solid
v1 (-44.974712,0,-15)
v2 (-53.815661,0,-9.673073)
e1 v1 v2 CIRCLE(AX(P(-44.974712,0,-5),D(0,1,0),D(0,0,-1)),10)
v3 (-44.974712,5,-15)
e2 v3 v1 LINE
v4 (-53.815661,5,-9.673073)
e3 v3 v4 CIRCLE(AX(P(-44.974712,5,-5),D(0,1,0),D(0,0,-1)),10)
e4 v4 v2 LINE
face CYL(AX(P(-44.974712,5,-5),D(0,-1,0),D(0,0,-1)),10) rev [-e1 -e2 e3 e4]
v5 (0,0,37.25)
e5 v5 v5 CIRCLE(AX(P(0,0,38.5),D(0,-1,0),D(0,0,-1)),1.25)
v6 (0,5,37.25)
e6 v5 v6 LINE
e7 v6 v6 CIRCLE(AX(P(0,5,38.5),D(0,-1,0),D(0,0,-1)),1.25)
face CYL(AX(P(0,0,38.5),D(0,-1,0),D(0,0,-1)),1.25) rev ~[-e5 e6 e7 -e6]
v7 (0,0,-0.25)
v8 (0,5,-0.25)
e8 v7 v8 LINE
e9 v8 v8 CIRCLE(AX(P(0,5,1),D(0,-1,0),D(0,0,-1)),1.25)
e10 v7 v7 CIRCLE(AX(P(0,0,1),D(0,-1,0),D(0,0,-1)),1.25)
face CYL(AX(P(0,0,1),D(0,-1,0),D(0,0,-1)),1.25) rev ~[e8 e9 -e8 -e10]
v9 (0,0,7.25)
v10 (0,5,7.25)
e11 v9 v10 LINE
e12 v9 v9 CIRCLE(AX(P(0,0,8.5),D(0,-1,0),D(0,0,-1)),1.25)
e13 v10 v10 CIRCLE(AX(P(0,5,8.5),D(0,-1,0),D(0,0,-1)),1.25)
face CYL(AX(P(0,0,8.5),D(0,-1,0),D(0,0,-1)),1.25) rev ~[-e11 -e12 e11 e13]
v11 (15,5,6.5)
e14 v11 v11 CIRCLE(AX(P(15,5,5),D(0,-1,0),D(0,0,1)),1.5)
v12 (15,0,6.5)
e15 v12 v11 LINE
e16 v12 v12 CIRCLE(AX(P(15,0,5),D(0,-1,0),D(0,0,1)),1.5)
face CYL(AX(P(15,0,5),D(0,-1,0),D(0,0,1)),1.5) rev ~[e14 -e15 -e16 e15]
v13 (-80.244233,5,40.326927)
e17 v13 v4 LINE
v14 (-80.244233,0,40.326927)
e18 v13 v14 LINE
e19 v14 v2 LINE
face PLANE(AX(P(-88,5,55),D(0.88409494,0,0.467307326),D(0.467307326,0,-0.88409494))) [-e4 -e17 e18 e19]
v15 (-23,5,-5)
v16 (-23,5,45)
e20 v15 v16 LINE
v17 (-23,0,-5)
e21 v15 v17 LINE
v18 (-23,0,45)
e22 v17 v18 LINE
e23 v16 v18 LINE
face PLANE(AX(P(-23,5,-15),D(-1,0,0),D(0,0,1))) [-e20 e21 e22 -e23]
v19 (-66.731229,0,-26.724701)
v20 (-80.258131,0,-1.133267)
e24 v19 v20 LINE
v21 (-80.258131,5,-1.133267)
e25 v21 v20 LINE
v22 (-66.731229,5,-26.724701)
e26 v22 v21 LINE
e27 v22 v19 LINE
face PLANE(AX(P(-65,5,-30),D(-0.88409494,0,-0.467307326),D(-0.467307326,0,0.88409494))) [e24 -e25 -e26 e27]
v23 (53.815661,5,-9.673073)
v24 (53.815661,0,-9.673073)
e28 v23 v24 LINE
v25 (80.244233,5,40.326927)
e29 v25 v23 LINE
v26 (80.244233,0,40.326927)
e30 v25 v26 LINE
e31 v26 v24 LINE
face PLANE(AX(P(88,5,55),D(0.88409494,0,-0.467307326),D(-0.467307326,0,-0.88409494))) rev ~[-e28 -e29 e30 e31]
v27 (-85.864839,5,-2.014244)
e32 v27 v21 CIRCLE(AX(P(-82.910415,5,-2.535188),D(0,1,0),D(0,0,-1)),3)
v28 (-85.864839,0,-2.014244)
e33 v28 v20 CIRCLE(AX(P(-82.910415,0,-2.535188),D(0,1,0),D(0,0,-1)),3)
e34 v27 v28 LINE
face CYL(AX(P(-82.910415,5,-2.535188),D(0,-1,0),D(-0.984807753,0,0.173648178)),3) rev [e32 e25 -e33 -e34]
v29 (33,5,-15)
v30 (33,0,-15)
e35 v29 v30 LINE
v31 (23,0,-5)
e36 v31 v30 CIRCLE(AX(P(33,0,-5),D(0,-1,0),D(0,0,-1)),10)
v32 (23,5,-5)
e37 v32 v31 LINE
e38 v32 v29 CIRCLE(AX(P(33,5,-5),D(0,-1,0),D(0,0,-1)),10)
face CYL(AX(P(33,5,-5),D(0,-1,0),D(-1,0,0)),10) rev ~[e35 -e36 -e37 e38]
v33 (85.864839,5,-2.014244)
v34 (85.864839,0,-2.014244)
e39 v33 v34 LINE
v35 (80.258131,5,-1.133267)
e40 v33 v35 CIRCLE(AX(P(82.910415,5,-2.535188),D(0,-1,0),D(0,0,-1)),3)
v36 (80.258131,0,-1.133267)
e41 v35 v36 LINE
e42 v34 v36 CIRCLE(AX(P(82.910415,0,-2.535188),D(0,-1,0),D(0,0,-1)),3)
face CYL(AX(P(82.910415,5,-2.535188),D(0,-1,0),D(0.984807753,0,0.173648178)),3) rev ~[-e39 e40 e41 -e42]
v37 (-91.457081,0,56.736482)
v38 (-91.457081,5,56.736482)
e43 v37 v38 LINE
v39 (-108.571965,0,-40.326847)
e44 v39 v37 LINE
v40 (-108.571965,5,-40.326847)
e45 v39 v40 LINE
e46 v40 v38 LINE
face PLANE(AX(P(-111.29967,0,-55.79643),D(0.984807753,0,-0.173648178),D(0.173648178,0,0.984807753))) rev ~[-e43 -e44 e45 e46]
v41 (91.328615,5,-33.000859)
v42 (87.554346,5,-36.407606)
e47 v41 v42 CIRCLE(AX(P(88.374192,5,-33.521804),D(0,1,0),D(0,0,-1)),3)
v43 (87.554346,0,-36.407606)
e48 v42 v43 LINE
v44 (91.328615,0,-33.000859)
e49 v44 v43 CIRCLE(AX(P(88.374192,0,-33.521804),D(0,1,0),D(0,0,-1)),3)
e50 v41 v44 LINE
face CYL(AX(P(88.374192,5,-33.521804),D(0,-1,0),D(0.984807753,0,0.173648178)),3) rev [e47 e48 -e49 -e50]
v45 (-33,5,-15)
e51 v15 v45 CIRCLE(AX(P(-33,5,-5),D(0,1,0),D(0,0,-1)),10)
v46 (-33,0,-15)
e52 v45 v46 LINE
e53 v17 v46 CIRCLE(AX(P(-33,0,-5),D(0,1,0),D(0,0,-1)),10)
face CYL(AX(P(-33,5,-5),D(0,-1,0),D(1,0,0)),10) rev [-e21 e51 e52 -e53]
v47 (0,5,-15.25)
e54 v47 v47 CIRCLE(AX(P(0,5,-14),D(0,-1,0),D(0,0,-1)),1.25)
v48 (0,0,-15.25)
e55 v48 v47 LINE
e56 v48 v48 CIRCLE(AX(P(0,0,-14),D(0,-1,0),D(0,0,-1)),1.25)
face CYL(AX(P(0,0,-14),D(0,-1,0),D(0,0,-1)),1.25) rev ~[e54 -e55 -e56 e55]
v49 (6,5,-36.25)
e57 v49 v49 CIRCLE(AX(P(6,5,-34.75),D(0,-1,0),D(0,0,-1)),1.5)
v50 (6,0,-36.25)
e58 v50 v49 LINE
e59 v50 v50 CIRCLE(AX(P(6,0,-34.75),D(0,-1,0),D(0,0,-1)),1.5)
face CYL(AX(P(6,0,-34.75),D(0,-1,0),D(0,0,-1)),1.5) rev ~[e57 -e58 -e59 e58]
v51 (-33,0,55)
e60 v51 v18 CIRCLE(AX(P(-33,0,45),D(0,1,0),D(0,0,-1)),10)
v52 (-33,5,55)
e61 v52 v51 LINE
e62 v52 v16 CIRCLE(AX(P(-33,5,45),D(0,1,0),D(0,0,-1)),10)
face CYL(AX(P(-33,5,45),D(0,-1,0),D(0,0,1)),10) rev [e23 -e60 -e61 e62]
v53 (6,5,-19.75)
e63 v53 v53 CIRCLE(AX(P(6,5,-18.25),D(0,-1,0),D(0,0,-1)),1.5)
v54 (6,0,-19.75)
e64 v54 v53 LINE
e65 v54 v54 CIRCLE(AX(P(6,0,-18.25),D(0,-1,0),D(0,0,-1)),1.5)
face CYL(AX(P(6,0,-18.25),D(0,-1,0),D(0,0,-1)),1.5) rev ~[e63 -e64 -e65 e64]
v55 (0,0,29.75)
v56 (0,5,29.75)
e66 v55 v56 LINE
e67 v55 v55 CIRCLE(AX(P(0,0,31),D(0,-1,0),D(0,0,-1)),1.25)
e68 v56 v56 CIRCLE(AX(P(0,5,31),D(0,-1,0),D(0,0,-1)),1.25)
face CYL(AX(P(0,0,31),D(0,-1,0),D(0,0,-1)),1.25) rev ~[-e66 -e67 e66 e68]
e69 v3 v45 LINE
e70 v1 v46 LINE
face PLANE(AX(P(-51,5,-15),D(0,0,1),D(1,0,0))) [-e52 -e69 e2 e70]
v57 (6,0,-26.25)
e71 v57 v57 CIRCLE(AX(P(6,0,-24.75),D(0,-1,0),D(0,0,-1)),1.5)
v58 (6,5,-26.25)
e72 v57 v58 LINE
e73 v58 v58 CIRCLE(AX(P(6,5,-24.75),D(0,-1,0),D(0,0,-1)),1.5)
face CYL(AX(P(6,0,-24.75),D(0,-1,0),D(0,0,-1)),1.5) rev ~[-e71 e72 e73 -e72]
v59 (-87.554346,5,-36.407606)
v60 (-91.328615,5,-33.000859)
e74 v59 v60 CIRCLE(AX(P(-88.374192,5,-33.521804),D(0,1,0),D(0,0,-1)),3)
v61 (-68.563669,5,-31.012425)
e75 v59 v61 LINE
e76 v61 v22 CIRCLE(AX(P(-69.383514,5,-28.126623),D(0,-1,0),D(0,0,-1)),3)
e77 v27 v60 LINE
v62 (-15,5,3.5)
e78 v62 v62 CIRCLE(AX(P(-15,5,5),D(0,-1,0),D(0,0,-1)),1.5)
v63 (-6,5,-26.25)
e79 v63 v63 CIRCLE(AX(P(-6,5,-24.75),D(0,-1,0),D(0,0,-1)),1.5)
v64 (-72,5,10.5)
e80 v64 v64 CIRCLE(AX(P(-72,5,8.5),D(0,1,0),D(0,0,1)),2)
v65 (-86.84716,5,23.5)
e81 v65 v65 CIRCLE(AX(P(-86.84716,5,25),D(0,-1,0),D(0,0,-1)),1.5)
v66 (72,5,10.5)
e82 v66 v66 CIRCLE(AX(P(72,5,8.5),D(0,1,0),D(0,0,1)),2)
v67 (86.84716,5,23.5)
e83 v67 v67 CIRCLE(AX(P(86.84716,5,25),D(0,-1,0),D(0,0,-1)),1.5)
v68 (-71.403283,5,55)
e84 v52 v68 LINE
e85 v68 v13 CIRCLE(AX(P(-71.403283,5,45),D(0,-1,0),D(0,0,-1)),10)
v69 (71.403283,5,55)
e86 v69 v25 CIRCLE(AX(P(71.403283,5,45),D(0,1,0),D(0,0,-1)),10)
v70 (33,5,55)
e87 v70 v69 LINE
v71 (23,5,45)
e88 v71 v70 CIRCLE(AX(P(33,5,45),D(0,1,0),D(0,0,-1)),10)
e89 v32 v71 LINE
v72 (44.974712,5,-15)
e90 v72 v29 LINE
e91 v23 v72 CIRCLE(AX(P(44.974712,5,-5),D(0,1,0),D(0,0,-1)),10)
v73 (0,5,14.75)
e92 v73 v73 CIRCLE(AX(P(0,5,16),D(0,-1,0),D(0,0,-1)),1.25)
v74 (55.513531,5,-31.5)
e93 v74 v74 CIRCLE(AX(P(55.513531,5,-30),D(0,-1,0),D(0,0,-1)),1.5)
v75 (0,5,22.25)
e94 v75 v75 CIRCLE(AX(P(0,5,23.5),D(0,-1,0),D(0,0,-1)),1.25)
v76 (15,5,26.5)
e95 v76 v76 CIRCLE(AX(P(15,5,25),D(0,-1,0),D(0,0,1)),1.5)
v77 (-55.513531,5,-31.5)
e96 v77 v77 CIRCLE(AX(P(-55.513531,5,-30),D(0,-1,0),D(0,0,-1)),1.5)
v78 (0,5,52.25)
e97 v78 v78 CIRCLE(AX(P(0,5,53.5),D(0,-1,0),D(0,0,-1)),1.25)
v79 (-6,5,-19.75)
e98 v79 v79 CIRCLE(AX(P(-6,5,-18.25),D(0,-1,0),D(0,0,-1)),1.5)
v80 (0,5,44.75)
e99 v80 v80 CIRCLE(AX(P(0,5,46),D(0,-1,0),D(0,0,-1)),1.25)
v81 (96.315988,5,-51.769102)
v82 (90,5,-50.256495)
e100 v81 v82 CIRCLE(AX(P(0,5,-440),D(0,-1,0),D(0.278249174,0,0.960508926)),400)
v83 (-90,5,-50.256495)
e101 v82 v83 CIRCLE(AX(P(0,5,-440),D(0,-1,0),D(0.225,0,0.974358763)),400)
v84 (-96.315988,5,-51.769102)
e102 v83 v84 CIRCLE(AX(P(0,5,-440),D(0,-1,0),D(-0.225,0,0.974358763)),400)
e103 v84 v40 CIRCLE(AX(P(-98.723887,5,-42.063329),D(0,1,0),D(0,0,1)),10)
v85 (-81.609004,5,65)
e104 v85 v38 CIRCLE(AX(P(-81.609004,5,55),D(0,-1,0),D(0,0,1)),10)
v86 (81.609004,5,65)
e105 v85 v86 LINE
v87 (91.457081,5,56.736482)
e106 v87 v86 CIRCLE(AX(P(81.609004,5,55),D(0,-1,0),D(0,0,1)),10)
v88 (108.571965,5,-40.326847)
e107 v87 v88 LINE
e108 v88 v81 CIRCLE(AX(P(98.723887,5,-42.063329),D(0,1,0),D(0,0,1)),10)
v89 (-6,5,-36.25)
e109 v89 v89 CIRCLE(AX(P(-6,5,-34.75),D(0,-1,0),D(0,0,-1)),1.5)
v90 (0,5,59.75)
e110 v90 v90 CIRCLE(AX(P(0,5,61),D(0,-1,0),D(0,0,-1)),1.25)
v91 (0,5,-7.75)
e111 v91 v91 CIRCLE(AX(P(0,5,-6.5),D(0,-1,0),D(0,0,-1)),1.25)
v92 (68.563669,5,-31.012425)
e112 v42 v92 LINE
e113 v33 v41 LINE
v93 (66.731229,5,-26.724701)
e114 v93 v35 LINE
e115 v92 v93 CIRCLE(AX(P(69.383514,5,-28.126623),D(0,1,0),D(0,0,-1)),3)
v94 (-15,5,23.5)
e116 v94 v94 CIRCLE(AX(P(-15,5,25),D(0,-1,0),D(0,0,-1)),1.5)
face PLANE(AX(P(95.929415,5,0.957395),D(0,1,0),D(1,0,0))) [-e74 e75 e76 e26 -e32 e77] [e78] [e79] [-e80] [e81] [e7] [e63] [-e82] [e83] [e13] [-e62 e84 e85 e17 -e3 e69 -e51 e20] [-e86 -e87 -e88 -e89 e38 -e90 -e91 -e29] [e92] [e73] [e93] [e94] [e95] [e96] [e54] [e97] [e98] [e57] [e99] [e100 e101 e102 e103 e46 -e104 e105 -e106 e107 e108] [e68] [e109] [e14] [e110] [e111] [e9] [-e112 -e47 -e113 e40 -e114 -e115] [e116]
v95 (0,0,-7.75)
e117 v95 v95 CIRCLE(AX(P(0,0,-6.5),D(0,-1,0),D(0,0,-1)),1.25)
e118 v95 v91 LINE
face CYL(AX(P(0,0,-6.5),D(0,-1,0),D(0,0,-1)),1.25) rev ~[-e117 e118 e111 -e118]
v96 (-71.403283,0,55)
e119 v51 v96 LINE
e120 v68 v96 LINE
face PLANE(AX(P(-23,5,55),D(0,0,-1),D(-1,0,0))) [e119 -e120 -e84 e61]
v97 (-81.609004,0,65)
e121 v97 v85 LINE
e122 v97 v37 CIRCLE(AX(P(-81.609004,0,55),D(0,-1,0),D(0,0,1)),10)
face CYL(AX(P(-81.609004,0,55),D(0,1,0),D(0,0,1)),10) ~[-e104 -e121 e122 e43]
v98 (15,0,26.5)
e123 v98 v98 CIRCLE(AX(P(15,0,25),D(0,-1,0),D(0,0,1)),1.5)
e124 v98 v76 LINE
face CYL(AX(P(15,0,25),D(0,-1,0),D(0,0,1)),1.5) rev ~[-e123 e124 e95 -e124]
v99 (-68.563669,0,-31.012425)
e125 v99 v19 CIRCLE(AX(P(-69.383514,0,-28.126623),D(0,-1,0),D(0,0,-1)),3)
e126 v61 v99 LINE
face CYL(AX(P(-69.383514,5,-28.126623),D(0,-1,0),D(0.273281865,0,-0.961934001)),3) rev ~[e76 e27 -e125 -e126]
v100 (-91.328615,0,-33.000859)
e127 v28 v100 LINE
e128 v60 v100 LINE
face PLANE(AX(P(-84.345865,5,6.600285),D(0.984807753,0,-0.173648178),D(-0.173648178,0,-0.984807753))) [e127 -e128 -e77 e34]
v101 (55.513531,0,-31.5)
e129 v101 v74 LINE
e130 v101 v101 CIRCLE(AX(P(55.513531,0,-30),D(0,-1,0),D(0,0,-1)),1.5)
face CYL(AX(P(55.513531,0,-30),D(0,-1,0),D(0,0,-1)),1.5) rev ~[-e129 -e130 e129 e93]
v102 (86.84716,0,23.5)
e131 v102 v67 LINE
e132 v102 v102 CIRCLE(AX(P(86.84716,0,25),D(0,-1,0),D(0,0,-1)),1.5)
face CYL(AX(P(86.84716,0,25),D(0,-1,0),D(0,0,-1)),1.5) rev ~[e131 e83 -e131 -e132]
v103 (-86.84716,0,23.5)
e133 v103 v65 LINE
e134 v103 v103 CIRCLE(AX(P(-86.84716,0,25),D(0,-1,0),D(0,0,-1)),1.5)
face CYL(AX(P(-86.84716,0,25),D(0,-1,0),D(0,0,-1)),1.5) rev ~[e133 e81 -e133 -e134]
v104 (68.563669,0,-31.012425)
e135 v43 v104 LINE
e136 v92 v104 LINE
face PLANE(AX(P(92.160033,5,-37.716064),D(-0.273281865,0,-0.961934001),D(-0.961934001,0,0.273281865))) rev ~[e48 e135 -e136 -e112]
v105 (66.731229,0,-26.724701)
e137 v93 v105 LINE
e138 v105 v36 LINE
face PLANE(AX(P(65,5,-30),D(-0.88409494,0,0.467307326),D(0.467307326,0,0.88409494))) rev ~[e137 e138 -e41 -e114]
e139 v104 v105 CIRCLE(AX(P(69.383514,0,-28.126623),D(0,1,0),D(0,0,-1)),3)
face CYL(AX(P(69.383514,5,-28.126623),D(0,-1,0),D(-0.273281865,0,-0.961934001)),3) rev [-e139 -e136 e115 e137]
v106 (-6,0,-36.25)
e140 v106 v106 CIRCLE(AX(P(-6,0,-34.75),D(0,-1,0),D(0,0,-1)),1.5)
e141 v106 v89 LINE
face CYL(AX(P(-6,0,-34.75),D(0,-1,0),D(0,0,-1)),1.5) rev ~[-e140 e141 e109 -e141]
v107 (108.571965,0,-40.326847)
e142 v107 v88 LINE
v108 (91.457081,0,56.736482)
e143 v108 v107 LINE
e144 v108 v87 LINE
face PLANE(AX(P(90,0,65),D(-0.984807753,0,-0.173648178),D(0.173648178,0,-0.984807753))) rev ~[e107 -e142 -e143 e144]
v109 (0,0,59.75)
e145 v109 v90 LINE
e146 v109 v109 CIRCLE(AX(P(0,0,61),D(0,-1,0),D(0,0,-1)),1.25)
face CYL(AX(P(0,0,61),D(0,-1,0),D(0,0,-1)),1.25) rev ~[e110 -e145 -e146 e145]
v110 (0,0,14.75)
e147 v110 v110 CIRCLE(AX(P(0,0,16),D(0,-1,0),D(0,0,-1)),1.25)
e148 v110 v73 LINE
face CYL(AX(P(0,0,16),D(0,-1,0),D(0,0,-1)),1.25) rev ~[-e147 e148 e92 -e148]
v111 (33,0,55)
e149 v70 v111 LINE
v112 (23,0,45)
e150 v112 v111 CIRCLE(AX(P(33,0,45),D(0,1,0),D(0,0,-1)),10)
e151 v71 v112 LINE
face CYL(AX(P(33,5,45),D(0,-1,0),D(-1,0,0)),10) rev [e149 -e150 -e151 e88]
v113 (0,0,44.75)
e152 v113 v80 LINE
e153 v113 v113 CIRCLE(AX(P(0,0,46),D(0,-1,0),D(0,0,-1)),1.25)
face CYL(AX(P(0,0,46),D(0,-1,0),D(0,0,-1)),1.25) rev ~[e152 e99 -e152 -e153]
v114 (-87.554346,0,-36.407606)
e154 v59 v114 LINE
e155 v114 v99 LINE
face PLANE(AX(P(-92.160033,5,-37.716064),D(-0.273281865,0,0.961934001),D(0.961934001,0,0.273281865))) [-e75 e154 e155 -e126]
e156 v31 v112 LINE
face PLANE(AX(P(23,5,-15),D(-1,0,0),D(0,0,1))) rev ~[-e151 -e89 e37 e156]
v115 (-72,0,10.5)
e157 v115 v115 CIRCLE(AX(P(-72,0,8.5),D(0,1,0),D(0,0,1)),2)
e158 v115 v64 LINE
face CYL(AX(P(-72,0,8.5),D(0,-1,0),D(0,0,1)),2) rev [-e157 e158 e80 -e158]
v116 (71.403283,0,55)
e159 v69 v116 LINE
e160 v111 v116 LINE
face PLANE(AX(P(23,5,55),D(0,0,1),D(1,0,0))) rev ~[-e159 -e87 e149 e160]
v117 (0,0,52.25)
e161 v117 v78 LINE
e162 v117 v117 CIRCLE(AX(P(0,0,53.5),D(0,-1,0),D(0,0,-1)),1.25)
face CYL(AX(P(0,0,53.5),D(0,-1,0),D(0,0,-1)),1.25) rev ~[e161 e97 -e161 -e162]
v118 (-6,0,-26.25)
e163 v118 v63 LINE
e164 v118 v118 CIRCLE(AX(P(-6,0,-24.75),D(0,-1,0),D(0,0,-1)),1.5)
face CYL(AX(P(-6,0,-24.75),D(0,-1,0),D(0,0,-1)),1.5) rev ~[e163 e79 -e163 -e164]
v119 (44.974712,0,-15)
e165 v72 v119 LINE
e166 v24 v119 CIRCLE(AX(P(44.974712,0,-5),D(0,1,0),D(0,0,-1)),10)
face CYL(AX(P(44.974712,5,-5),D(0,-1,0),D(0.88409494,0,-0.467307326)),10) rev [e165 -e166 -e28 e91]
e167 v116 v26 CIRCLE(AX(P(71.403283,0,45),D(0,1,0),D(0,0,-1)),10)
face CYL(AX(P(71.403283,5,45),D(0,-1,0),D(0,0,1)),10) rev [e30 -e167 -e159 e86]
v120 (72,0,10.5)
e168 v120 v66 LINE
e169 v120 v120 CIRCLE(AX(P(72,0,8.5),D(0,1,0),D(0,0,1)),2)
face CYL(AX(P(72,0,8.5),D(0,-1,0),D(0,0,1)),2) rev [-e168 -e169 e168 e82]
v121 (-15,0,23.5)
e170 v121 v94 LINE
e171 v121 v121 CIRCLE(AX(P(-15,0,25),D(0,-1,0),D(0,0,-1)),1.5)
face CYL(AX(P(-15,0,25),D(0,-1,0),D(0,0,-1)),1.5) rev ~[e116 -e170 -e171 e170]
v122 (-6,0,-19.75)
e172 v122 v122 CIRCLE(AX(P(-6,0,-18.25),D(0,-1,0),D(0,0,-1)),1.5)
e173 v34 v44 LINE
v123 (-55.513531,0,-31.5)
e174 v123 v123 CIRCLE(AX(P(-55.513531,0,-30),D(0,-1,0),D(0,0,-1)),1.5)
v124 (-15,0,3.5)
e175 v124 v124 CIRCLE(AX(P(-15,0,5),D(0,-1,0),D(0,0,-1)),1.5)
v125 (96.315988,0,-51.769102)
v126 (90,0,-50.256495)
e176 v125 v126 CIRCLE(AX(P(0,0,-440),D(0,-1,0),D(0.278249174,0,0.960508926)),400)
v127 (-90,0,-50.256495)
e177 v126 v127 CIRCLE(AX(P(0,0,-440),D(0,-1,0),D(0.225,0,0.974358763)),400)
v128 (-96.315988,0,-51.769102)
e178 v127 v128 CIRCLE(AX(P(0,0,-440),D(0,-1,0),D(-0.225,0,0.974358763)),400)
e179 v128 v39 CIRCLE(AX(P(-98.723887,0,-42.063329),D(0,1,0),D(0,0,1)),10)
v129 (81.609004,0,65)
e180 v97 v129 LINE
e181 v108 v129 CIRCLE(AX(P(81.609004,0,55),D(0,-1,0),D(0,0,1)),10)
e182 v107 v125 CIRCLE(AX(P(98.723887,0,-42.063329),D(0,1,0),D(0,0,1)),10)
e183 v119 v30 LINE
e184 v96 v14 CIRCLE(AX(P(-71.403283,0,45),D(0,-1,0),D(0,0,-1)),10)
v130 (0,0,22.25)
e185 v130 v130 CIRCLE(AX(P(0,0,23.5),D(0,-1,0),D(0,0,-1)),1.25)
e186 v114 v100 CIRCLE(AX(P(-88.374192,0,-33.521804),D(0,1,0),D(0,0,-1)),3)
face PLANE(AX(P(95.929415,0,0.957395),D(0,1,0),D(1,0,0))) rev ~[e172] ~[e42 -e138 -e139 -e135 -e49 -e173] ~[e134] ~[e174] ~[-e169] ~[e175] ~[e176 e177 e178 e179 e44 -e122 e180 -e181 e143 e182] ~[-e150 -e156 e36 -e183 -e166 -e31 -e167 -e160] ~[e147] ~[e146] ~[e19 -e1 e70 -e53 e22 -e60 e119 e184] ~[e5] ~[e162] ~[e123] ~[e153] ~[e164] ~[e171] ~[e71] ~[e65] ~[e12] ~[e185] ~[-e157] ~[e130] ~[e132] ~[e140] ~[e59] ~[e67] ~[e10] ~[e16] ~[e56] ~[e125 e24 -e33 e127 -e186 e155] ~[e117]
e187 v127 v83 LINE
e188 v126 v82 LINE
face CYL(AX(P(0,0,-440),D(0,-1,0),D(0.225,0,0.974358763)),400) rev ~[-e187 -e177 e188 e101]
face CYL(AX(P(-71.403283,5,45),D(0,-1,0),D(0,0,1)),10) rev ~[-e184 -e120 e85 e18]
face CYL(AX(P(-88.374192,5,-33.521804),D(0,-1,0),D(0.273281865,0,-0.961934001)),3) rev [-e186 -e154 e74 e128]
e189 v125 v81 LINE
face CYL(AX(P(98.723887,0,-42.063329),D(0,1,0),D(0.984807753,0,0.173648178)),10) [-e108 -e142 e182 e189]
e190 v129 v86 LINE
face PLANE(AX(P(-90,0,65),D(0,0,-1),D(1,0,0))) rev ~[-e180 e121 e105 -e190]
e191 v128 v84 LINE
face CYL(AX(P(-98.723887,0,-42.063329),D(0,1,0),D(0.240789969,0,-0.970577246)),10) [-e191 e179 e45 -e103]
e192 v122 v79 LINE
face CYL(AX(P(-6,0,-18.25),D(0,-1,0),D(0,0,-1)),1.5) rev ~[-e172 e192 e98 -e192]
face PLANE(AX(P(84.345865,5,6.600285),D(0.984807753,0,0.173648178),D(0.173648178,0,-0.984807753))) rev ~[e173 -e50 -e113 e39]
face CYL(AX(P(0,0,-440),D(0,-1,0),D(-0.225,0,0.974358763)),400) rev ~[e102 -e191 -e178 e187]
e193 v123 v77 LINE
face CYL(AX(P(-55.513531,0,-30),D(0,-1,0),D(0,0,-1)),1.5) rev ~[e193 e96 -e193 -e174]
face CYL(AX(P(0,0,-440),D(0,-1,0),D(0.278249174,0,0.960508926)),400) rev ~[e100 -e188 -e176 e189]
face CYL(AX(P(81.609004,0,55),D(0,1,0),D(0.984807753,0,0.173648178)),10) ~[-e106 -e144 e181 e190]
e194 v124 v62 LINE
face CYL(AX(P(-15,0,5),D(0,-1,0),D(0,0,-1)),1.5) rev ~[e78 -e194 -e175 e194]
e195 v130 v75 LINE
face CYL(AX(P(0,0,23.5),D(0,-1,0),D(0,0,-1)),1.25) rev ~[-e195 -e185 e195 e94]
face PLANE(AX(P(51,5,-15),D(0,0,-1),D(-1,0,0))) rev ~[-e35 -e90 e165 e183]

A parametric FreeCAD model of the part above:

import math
import FreeCAD as App
import Part
import Sketcher
Q = App.Units.Quantity


def edges_at(feature, points):
    """Names of the edges that pass closest to the given points."""
    edges = feature.Shape.Edges
    near = lambda p: min(range(len(edges)), key=lambda i: edges[i].distToShape(Part.Vertex(*p))[0])
    return sorted({f"Edge{near(p) + 1}" for p in points})

doc = App.newDocument("Part")
params = doc.addObject("Spreadsheet::Sheet", "Params")
for row, (alias, value) in enumerate([
    ("sketch1_diameter", "4 mm"),
    ("sketch1_radius", "400 mm"),
    ("sketch1_width", "180 mm"),
    ("pad1_length", "5 mm"),
    ("sketch2_diameter", "3 mm"),
    ("sketch3_radius", "5 mm"),
    ("sketch3_height", "55 mm"),
    ("pocket2_length", "3 mm"),
    ("sketch4_radius", "33 mm"),
    ("sketch4_radius2", "43 mm"),
    ("pocket3_length", "3 mm"),
    ("sketch5_width", "65 mm"),
    ("sketch5_width2", "28 mm"),
    ("sketch5_height", "70 mm"),
    ("fillet_radius", "10 mm"),
    ("fillet2_radius", "10 mm"),
    ("fillet3_radius", "10 mm"),
    ("sketch6_length", "45 mm"),
    ("fillet4_radius", "3 mm"),
    ("sketch7_diameter", "3 mm"),
    ("sketch8_diameter", "2.5 mm"),
    ("sketch9_diameter", "3 mm"),
], start=1):
    params.set(f"A{row}", alias)
    params.set(f"B{row}", "=" + value)
    params.setAlias(f"B{row}", alias)

body = doc.addObject("PartDesign::Body", "Body")

# Sketch on XZ plane
sketch1 = body.newObject("Sketcher::SketchObject", "Sketch")
sketch1.AttachmentSupport = (doc.getObject("XZ_Plane"), [""])
sketch1.MapMode = "FlatFace"
sketch1.addGeometry([
    Part.ArcOfCircle(Part.Circle(App.Vector(0, -440, 0), App.Vector(0, 0, 1), 400), math.radians(77), math.radians(103)),  # 0
    Part.ArcOfCircle(Part.Circle(App.Vector(0, -440, 0), App.Vector(0, 0, 1), 400), math.radians(103), math.radians(106.16)),  # 1
    Part.LineSegment(App.Vector(-111.3, -55.8, 0), App.Vector(-90, 65, 0)),  # 2
    Part.LineSegment(App.Vector(-90, 65, 0), App.Vector(90, 65, 0)),  # 3
    Part.LineSegment(App.Vector(90, 65, 0), App.Vector(111.3, -55.8, 0)),  # 4
    Part.ArcOfCircle(Part.Circle(App.Vector(0, -440, 0), App.Vector(0, 0, 1), 400), math.radians(73.84), math.radians(77)),  # 5
    Part.Circle(App.Vector(-72, 8.5, 0), App.Vector(0, 0, 1), 2),  # 6
    Part.Circle(App.Vector(72, 8.5, 0), App.Vector(0, 0, 1), 2),  # 7
], False)
sketch1.addConstraint([
    Sketcher.Constraint("Tangent", 0, 2, 1, 1),
    Sketcher.Constraint("Coincident", 1, 2, 2, 1),
    Sketcher.Constraint("Coincident", 2, 2, 3, 1),
    Sketcher.Constraint("Coincident", 3, 2, 4, 1),
    Sketcher.Constraint("Coincident", 4, 2, 5, 1),
    Sketcher.Constraint("Tangent", 5, 2, 0, 1),
    Sketcher.Constraint("Horizontal", 3),
    Sketcher.Constraint("Equal", 0, 1),
    Sketcher.Constraint("Equal", 1, 5),
    Sketcher.Constraint("Equal", 6, 7),
    Sketcher.Constraint("Symmetric", 6, 3, 7, 3, -2),
    Sketcher.Constraint("Symmetric", 1, 2, 4, 2, -2),
    Sketcher.Constraint("Horizontal", 0, 2, 5, 2),
    Sketcher.Constraint("Vertical", 0, 2, 2, 2),
    Sketcher.Constraint("Vertical", 3, 2, 5, 2),
    Sketcher.Constraint("Diameter", 6, Q("4 mm")),
    Sketcher.Constraint("Radius", 0, Q("400 mm")),
    Sketcher.Constraint("DistanceX", 3, 1, 3, 2, Q("180 mm")),
    Sketcher.Constraint("Angle", 2, Q("80 deg")),
    Sketcher.Constraint("DistanceY", 0, 3, -1, 1, Q("440 mm")),
    Sketcher.Constraint("DistanceX", 6, 3, -1, 1, Q("72 mm")),
    Sketcher.Constraint("DistanceY", -1, 1, 2, 2, Q("65 mm")),
    Sketcher.Constraint("DistanceY", -1, 1, 6, 3, Q("8.5 mm")),
])
sketch1.setExpression("Constraints[15]", "Params.sketch1_diameter")
sketch1.setExpression("Constraints[16]", "Params.sketch1_radius")
sketch1.setExpression("Constraints[17]", "Params.sketch1_width")
pad1 = body.newObject("PartDesign::Pad", "Pad")
pad1.Profile = sketch1
pad1.setExpression("Length", "Params.pad1_length")
pad1.Reversed = True

# Sketch on XZ plane
sketch2 = body.newObject("Sketcher::SketchObject", "Sketch001")
sketch2.AttachmentSupport = (doc.getObject("XZ_Plane"), [""])
sketch2.MapMode = "FlatFace"
sketch2.addGeometry([
    Part.Circle(App.Vector(-6, -18.2, 0), App.Vector(0, 0, 1), 1.5),  # 0
    Part.Circle(App.Vector(6, -18.2, 0), App.Vector(0, 0, 1), 1.5),  # 1
    Part.Circle(App.Vector(-6, -24.8, 0), App.Vector(0, 0, 1), 1.5),  # 2
    Part.Circle(App.Vector(6, -24.8, 0), App.Vector(0, 0, 1), 1.5),  # 3
    Part.Circle(App.Vector(6, -34.8, 0), App.Vector(0, 0, 1), 1.5),  # 4
    Part.Circle(App.Vector(-6, -34.8, 0), App.Vector(0, 0, 1), 1.5),  # 5
], False)
sketch2.addConstraint([
    Sketcher.Constraint("Equal", 0, 1),
    Sketcher.Constraint("Equal", 1, 2),
    Sketcher.Constraint("Equal", 2, 3),
    Sketcher.Constraint("Equal", 3, 4),
    Sketcher.Constraint("Equal", 4, 5),
    Sketcher.Constraint("Symmetric", 0, 3, 1, 3, -2),
    Sketcher.Constraint("Symmetric", 2, 3, 3, 3, -2),
    Sketcher.Constraint("Symmetric", 4, 3, 5, 3, -2),
    Sketcher.Constraint("Vertical", 0, 3, 2, 3),
    Sketcher.Constraint("Vertical", 3, 3, 4, 3),
    Sketcher.Constraint("Diameter", 0, Q("3 mm")),
    Sketcher.Constraint("DistanceX", 0, 3, -1, 1, Q("6 mm")),
    Sketcher.Constraint("DistanceY", 4, 3, 3, 3, Q("10 mm")),
    Sketcher.Constraint("DistanceY", 2, 3, 0, 3, Q("6.5 mm")),
    Sketcher.Constraint("DistanceY", 0, 3, -1, 1, Q("18.25 mm")),
])
sketch2.setExpression("Constraints[10]", "Params.sketch2_diameter")
pocket1 = body.newObject("PartDesign::Pocket", "Pocket")
pocket1.Profile = sketch2
pocket1.Type = "ThroughAll"

# Sketch on XZ plane
sketch3 = body.newObject("Sketcher::SketchObject", "Sketch002")
sketch3.AttachmentSupport = (doc.getObject("XZ_Plane"), [""])
sketch3.MapMode = "FlatFace"
sketch3.AttachmentOffset = App.Placement(App.Vector(0, 0, -5), App.Rotation())
sketch3.addGeometry([
    Part.LineSegment(App.Vector(-35, 46, 0), App.Vector(-35, -8, 0)),  # 0
    Part.ArcOfCircle(Part.Circle(App.Vector(-40, -8, 0), App.Vector(0, 0, 1), 5), math.radians(180), math.radians(360)),  # 1
    Part.LineSegment(App.Vector(-45, -8, 0), App.Vector(-45, 46, 0)),  # 2
    Part.ArcOfCircle(Part.Circle(App.Vector(-40, 46, 0), App.Vector(0, 0, 1), 5), math.radians(0), math.radians(180)),  # 3
    Part.ArcOfCircle(Part.Circle(App.Vector(40, 46, 0), App.Vector(0, 0, 1), 5), math.radians(0), math.radians(180)),  # 4
    Part.LineSegment(App.Vector(45, 46, 0), App.Vector(45, -8, 0)),  # 5
    Part.ArcOfCircle(Part.Circle(App.Vector(40, -8, 0), App.Vector(0, 0, 1), 5), math.radians(180), math.radians(360)),  # 6
    Part.LineSegment(App.Vector(35, -8, 0), App.Vector(35, 46, 0)),  # 7
], False)
sketch3.addConstraint([
    Sketcher.Constraint("Tangent", 0, 2, 1, 2),
    Sketcher.Constraint("Tangent", 1, 1, 2, 1),
    Sketcher.Constraint("Tangent", 2, 2, 3, 2),
    Sketcher.Constraint("Tangent", 3, 1, 0, 1),
    Sketcher.Constraint("Tangent", 4, 1, 5, 1),
    Sketcher.Constraint("Tangent", 5, 2, 6, 2),
    Sketcher.Constraint("Tangent", 6, 1, 7, 1),
    Sketcher.Constraint("Tangent", 7, 2, 4, 2),
    Sketcher.Constraint("Vertical", 0),
    Sketcher.Constraint("Vertical", 2),
    Sketcher.Constraint("Vertical", 5),
    Sketcher.Constraint("Vertical", 7),
    Sketcher.Constraint("Equal", 3, 4),
    Sketcher.Constraint("Symmetric", 3, 3, 4, 3, -2),
    Sketcher.Constraint("Horizontal", 1, 3, 6, 3),
    Sketcher.Constraint("Radius", 1, Q("5 mm")),
    Sketcher.Constraint("DistanceY", 0, 2, 0, 1, Q("55 mm")),
    Sketcher.Constraint("DistanceX", 1, 3, -1, 1, Q("40 mm")),
    Sketcher.Constraint("DistanceY", 1, 3, -1, 1, Q("8.5 mm")),
])
sketch3.setExpression("Constraints[15]", "Params.sketch3_radius")
sketch3.setExpression("Constraints[16]", "Params.sketch3_height")
pocket2 = body.newObject("PartDesign::Pocket", "Pocket001")
pocket2.Profile = sketch3
pocket2.setExpression("Length", "Params.pocket2_length")
pocket2.Reversed = True

# Sketch on XZ plane
sketch4 = body.newObject("Sketcher::SketchObject", "Sketch003")
sketch4.AttachmentSupport = (doc.getObject("XZ_Plane"), [""])
sketch4.MapMode = "FlatFace"
sketch4.AttachmentOffset = App.Placement(App.Vector(0, 0, -5), App.Rotation())
sketch4.addGeometry([
    Part.ArcOfCircle(Part.Circle(App.Vector(72, 8.5, 0), App.Vector(0, 0, 1), 33), math.radians(145), math.radians(200)),  # 0
    Part.LineSegment(App.Vector(41, -2.8, 0), App.Vector(35, -5, 0)),  # 1
    Part.LineSegment(App.Vector(35, -5, 0), App.Vector(31.6, -6.2, 0)),  # 2
    Part.ArcOfCircle(Part.Circle(App.Vector(72, 8.5, 0), App.Vector(0, 0, 1), 43), math.radians(149), math.radians(200)),  # 3
    Part.ArcOfCircle(Part.Circle(App.Vector(72, 8.5, 0), App.Vector(0, 0, 1), 43), math.radians(129), math.radians(149)),  # 4
    Part.ArcOfCircle(Part.Circle(App.Vector(72, 8.5, 0), App.Vector(0, 0, 1), 43), math.radians(90), math.radians(129)),  # 5
    Part.LineSegment(App.Vector(72, 51.5, 0), App.Vector(72, 41.5, 0)),  # 6
    Part.ArcOfCircle(Part.Circle(App.Vector(72, 8.5, 0), App.Vector(0, 0, 1), 33), math.radians(90), math.radians(145)),  # 7
], False)
sketch4.addConstraint([
    Sketcher.Constraint("Coincident", 0, 2, 1, 1),
    Sketcher.Constraint("Coincident", 1, 2, 2, 1),
    Sketcher.Constraint("Coincident", 2, 2, 3, 2),
    Sketcher.Constraint("Tangent", 3, 1, 4, 2),
    Sketcher.Constraint("Tangent", 4, 1, 5, 2),
    Sketcher.Constraint("Coincident", 5, 1, 6, 1),
    Sketcher.Constraint("Coincident", 6, 2, 7, 1),
    Sketcher.Constraint("Tangent", 7, 2, 0, 1),
    Sketcher.Constraint("Vertical", 6),
    Sketcher.Constraint("Coincident", 3, 3, 0, 3),
    Sketcher.Constraint("Coincident", 5, 3, 0, 3),
    Sketcher.Constraint("Equal", 0, 7),
    Sketcher.Constraint("Parallel", 1, 2),
    Sketcher.Constraint("Vertical", 1, 2, 3, 1),
    Sketcher.Constraint("Vertical", 7, 3, 5, 1),
    Sketcher.Constraint("Vertical", 4, 1, 7, 2),
    Sketcher.Constraint("Radius", 0, Q("33 mm")),
    Sketcher.Constraint("Radius", 3, Q("43 mm")),
    Sketcher.Constraint("Angle", 1, Q("-160 deg")),
    Sketcher.Constraint("DistanceX", -1, 1, 0, 3, Q("72 mm")),
    Sketcher.Constraint("DistanceX", -1, 1, 1, 2, Q("35 mm")),
    Sketcher.Constraint("DistanceX", -1, 1, 4, 1, Q("45 mm")),
    Sketcher.Constraint("DistanceY", -1, 1, 0, 3, Q("8.5 mm")),
    Sketcher.Constraint("DistanceY", 1, 2, -1, 1, Q("4.966899 mm")),
])
sketch4.setExpression("Constraints[16]", "Params.sketch4_radius")
sketch4.setExpression("Constraints[17]", "Params.sketch4_radius2")
pocket3 = body.newObject("PartDesign::Pocket", "Pocket002")
pocket3.Profile = sketch4
pocket3.setExpression("Length", "Params.pocket3_length")
pocket3.Reversed = True

# Sketch on XZ plane
sketch5 = body.newObject("Sketcher::SketchObject", "Sketch004")
sketch5.AttachmentSupport = (doc.getObject("XZ_Plane"), [""])
sketch5.MapMode = "FlatFace"
sketch5.AttachmentOffset = App.Placement(App.Vector(0, 0, -5), App.Rotation())
sketch5.addGeometry([
    Part.LineSegment(App.Vector(23, -15, 0), App.Vector(23, 55, 0)),  # 0
    Part.LineSegment(App.Vector(23, 55, 0), App.Vector(88, 55, 0)),  # 1
    Part.LineSegment(App.Vector(88, 55, 0), App.Vector(51, -15, 0)),  # 2
    Part.LineSegment(App.Vector(51, -15, 0), App.Vector(23, -15, 0)),  # 3
    Part.LineSegment(App.Vector(-51, -15, 0), App.Vector(-88, 55, 0)),  # 4
    Part.LineSegment(App.Vector(-88, 55, 0), App.Vector(-23, 55, 0)),  # 5
    Part.LineSegment(App.Vector(-23, 55, 0), App.Vector(-23, -15, 0)),  # 6
    Part.LineSegment(App.Vector(-23, -15, 0), App.Vector(-51, -15, 0)),  # 7
], False)
sketch5.addConstraint([
    Sketcher.Constraint("Coincident", 0, 2, 1, 1),
    Sketcher.Constraint("Coincident", 1, 2, 2, 1),
    Sketcher.Constraint("Coincident", 2, 2, 3, 1),
    Sketcher.Constraint("Coincident", 3, 2, 0, 1),
    Sketcher.Constraint("Coincident", 4, 2, 5, 1),
    Sketcher.Constraint("Coincident", 5, 2, 6, 1),
    Sketcher.Constraint("Coincident", 6, 2, 7, 1),
    Sketcher.Constraint("Coincident", 7, 2, 4, 1),
    Sketcher.Constraint("Vertical", 0),
    Sketcher.Constraint("Horizontal", 1),
    Sketcher.Constraint("Horizontal", 3),
    Sketcher.Constraint("Horizontal", 5),
    Sketcher.Constraint("Vertical", 6),
    Sketcher.Constraint("Horizontal", 7),
    Sketcher.Constraint("Symmetric", 1, 2, 4, 2, -2),
    Sketcher.Constraint("Symmetric", 3, 2, 6, 2, -2),
    Sketcher.Constraint("Equal", 3, 7),
    Sketcher.Constraint("DistanceX", 1, 1, 1, 2, Q("65 mm")),
    Sketcher.Constraint("DistanceX", 3, 2, 3, 1, Q("28 mm")),
    Sketcher.Constraint("DistanceY", 0, 1, 0, 2, Q("70 mm")),
    Sketcher.Constraint("DistanceX", -1, 1, 0, 2, Q("23 mm")),
    Sketcher.Constraint("DistanceY", -1, 1, 0, 2, Q("55 mm")),
])
sketch5.setExpression("Constraints[17]", "Params.sketch5_width")
sketch5.setExpression("Constraints[18]", "Params.sketch5_width2")
sketch5.setExpression("Constraints[19]", "Params.sketch5_height")
pocket4 = body.newObject("PartDesign::Pocket", "Pocket003")
pocket4.Profile = sketch5
pocket4.Type = "ThroughAll"
pocket4.Reversed = True
doc.recompute()

fillet = body.newObject("PartDesign::Fillet", "Fillet")
fillet.Base = (pocket4, edges_at(pocket4, [
    (23, 2.5, -15),
    (51, 2.5, -15),
    (88, 2.5, 55),
    (23, 2.5, 55),
    (-23, 2.5, 55),
    (-88, 2.5, 55),
    (-51, 2.5, -15),
    (-23, 2.5, -15),
]))
fillet.setExpression("Radius", "Params.fillet_radius")
doc.recompute()

fillet2 = body.newObject("PartDesign::Fillet", "Fillet001")
fillet2.Base = (fillet, edges_at(fillet, [(90, 2.5, 65), (-90, 2.5, 65)]))
fillet2.setExpression("Radius", "Params.fillet2_radius")
doc.recompute()

fillet3 = body.newObject("PartDesign::Fillet", "Fillet002")
fillet3.Base = (fillet2, edges_at(fillet2, [(111.3, 2.5, -55.796), (-111.3, 2.5, -55.796)]))
fillet3.setExpression("Radius", "Params.fillet3_radius")

# Sketch on XZ plane
sketch6 = body.newObject("Sketcher::SketchObject", "Sketch005")
sketch6.AttachmentSupport = (doc.getObject("XZ_Plane"), [""])
sketch6.MapMode = "FlatFace"
sketch6.AttachmentOffset = App.Placement(App.Vector(0, 0, -5), App.Rotation())
sketch6.addGeometry([
    Part.LineSegment(App.Vector(-84, 7, 0), App.Vector(-65, -30, 0)),  # 0
    Part.LineSegment(App.Vector(-65, -30, 0), App.Vector(-92, -38, 0)),  # 1
    Part.LineSegment(App.Vector(-92, -38, 0), App.Vector(-84, 7, 0)),  # 2
    Part.LineSegment(App.Vector(84, 7, 0), App.Vector(92, -38, 0)),  # 3
    Part.LineSegment(App.Vector(92, -38, 0), App.Vector(65, -30, 0)),  # 4
    Part.LineSegment(App.Vector(65, -30, 0), App.Vector(84, 7, 0)),  # 5
], False)
sketch6.addConstraint([
    Sketcher.Constraint("Coincident", 0, 2, 1, 1),
    Sketcher.Constraint("Coincident", 1, 2, 2, 1),
    Sketcher.Constraint("Coincident", 2, 2, 0, 1),
    Sketcher.Constraint("Coincident", 3, 2, 4, 1),
    Sketcher.Constraint("Coincident", 4, 2, 5, 1),
    Sketcher.Constraint("Coincident", 5, 2, 3, 1),
    Sketcher.Constraint("Symmetric", 1, 2, 3, 2, -2),
    Sketcher.Constraint("Symmetric", 0, 2, 4, 2, -2),
    Sketcher.Constraint("Symmetric", 2, 2, 5, 2, -2),
    Sketcher.Constraint("Angle", 2, Q("80 deg")),
    Sketcher.Constraint("Distance", 2, Q("45 mm")),
    Sketcher.Constraint("DistanceX", 0, 2, -1, 1, Q("65 mm")),
    Sketcher.Constraint("DistanceY", 0, 2, -1, 1, Q("30 mm")),
    Sketcher.Constraint("Distance", 0, Q("41.398591 mm")),
    Sketcher.Constraint("Distance", 1, Q("28.234819 mm")),
])
sketch6.setExpression("Constraints[10]", "Params.sketch6_length")
pocket5 = body.newObject("PartDesign::Pocket", "Pocket004")
pocket5.Profile = sketch6
pocket5.Type = "ThroughAll"
pocket5.Reversed = True
doc.recompute()

fillet4 = body.newObject("PartDesign::Fillet", "Fillet003")
fillet4.Base = (pocket5, edges_at(pocket5, [
    (-92.16, 2.5, -37.716),
    (-65, 2.5, -30),
    (-84.346, 2.5, 6.6),
    (84.346, 2.5, 6.6),
    (65, 2.5, -30),
    (92.16, 2.5, -37.716),
]))
fillet4.setExpression("Radius", "Params.fillet4_radius")

# Sketch on XZ plane
sketch7 = body.newObject("Sketcher::SketchObject", "Sketch006")
sketch7.AttachmentSupport = (doc.getObject("XZ_Plane"), [""])
sketch7.MapMode = "FlatFace"
sketch7.addGeometry([
    Part.Circle(App.Vector(55.5, -30, 0), App.Vector(0, 0, 1), 1.5),
    Part.Circle(App.Vector(86.8, 25, 0), App.Vector(0, 0, 1), 1.5),
    Part.Circle(App.Vector(-55.5, -30, 0), App.Vector(0, 0, 1), 1.5),
    Part.Circle(App.Vector(-86.8, 25, 0), App.Vector(0, 0, 1), 1.5),
], False)
sketch7.addConstraint([
    Sketcher.Constraint("Equal", 0, 1),
    Sketcher.Constraint("Equal", 1, 2),
    Sketcher.Constraint("Equal", 2, 3),
    Sketcher.Constraint("Symmetric", 0, 3, 2, 3, -2),
    Sketcher.Constraint("Symmetric", 1, 3, 3, 3, -2),
    Sketcher.Constraint("Diameter", 0, Q("3 mm")),
    Sketcher.Constraint("DistanceY", 0, 3, -1, 1, Q("30 mm")),
    Sketcher.Constraint("DistanceY", -1, 1, 1, 3, Q("25 mm")),
    Sketcher.Constraint("DistanceX", -1, 1, 0, 3, Q("55.513531 mm")),
    Sketcher.Constraint("DistanceX", -1, 1, 1, 3, Q("86.84716 mm")),
])
sketch7.setExpression("Constraints[5]", "Params.sketch7_diameter")
pocket6 = body.newObject("PartDesign::Pocket", "Pocket005")
pocket6.Profile = sketch7
pocket6.Type = "ThroughAll"

# Sketch on XZ plane
sketch8 = body.newObject("Sketcher::SketchObject", "Sketch007")
sketch8.AttachmentSupport = (doc.getObject("XZ_Plane"), [""])
sketch8.MapMode = "FlatFace"
sketch8.addGeometry([
    Part.Circle(App.Vector(0, -14, 0), App.Vector(0, 0, 1), 1.2),  # 0
    Part.Circle(App.Vector(0, -6.5, 0), App.Vector(0, 0, 1), 1.2),  # 1
    Part.Circle(App.Vector(0, 1, 0), App.Vector(0, 0, 1), 1.2),  # 2
    Part.Circle(App.Vector(0, 8.5, 0), App.Vector(0, 0, 1), 1.2),  # 3
    Part.Circle(App.Vector(0, 16, 0), App.Vector(0, 0, 1), 1.2),  # 4
    Part.Circle(App.Vector(0, 23.5, 0), App.Vector(0, 0, 1), 1.2),  # 5
    Part.Circle(App.Vector(0, 31, 0), App.Vector(0, 0, 1), 1.2),  # 6
    Part.Circle(App.Vector(0, 38.5, 0), App.Vector(0, 0, 1), 1.2),  # 7
    Part.Circle(App.Vector(0, 46, 0), App.Vector(0, 0, 1), 1.2),  # 8
    Part.Circle(App.Vector(0, 53.5, 0), App.Vector(0, 0, 1), 1.2),  # 9
    Part.Circle(App.Vector(0, 61, 0), App.Vector(0, 0, 1), 1.2),  # 10
], False)
sketch8.addConstraint([
    Sketcher.Constraint("Equal", 0, 1),
    Sketcher.Constraint("Equal", 1, 2),
    Sketcher.Constraint("Equal", 2, 3),
    Sketcher.Constraint("Equal", 3, 4),
    Sketcher.Constraint("Equal", 4, 5),
    Sketcher.Constraint("Equal", 5, 6),
    Sketcher.Constraint("Equal", 6, 7),
    Sketcher.Constraint("Equal", 7, 8),
    Sketcher.Constraint("Equal", 8, 9),
    Sketcher.Constraint("Equal", 9, 10),
    Sketcher.Constraint("PointOnObject", 0, 3, -2),
    Sketcher.Constraint("PointOnObject", 1, 3, -2),
    Sketcher.Constraint("PointOnObject", 2, 3, -2),
    Sketcher.Constraint("PointOnObject", 3, 3, -2),
    Sketcher.Constraint("PointOnObject", 4, 3, -2),
    Sketcher.Constraint("PointOnObject", 5, 3, -2),
    Sketcher.Constraint("PointOnObject", 6, 3, -2),
    Sketcher.Constraint("PointOnObject", 7, 3, -2),
    Sketcher.Constraint("PointOnObject", 8, 3, -2),
    Sketcher.Constraint("PointOnObject", 9, 3, -2),
    Sketcher.Constraint("PointOnObject", 10, 3, -2),
    Sketcher.Constraint("Diameter", 0, Q("2.5 mm")),
    Sketcher.Constraint("DistanceY", 0, 3, -1, 1, Q("14 mm")),
    Sketcher.Constraint("DistanceY", -1, 1, 2, 3, Q("1 mm")),
    Sketcher.Constraint("DistanceY", -1, 1, 4, 3, Q("16 mm")),
    Sketcher.Constraint("DistanceY", -1, 1, 6, 3, Q("31 mm")),
    Sketcher.Constraint("DistanceY", -1, 1, 8, 3, Q("46 mm")),
    Sketcher.Constraint("DistanceY", -1, 1, 10, 3, Q("61 mm")),
    Sketcher.Constraint("DistanceY", 1, 3, 3, 3, Q("15 mm")),
    Sketcher.Constraint("DistanceY", 3, 3, 5, 3, Q("15 mm")),
    Sketcher.Constraint("DistanceY", 5, 3, 7, 3, Q("15 mm")),
    Sketcher.Constraint("DistanceY", 7, 3, 9, 3, Q("15 mm")),
    Sketcher.Constraint("DistanceY", 1, 3, -1, 1, Q("6.5 mm")),
])
sketch8.setExpression("Constraints[21]", "Params.sketch8_diameter")
pocket7 = body.newObject("PartDesign::Pocket", "Pocket006")
pocket7.Profile = sketch8
pocket7.Type = "ThroughAll"

# Sketch on XZ plane
sketch9 = body.newObject("Sketcher::SketchObject", "Sketch008")
sketch9.AttachmentSupport = (doc.getObject("XZ_Plane"), [""])
sketch9.MapMode = "FlatFace"
sketch9.addGeometry([
    Part.Circle(App.Vector(-15, 25, 0), App.Vector(0, 0, 1), 1.5),
    Part.Circle(App.Vector(-15, 5, 0), App.Vector(0, 0, 1), 1.5),
    Part.Circle(App.Vector(15, 5, 0), App.Vector(0, 0, 1), 1.5),
    Part.Circle(App.Vector(15, 25, 0), App.Vector(0, 0, 1), 1.5),
], False)
sketch9.addConstraint([
    Sketcher.Constraint("Equal", 0, 1),
    Sketcher.Constraint("Equal", 1, 2),
    Sketcher.Constraint("Equal", 2, 3),
    Sketcher.Constraint("Symmetric", 1, 3, 2, 3, -2),
    Sketcher.Constraint("Symmetric", 0, 3, 3, 3, -2),
    Sketcher.Constraint("Vertical", 0, 3, 1, 3),
    Sketcher.Constraint("Diameter", 0, Q("3 mm")),
    Sketcher.Constraint("DistanceX", 0, 3, -1, 1, Q("15 mm")),
    Sketcher.Constraint("DistanceY", -1, 1, 0, 3, Q("25 mm")),
    Sketcher.Constraint("DistanceY", -1, 1, 1, 3, Q("5 mm")),
])
sketch9.setExpression("Constraints[6]", "Params.sketch9_diameter")
pocket8 = body.newObject("PartDesign::Pocket", "Pocket007")
pocket8.Profile = sketch9
pocket8.Type = "ThroughAll"

doc.recompute()
